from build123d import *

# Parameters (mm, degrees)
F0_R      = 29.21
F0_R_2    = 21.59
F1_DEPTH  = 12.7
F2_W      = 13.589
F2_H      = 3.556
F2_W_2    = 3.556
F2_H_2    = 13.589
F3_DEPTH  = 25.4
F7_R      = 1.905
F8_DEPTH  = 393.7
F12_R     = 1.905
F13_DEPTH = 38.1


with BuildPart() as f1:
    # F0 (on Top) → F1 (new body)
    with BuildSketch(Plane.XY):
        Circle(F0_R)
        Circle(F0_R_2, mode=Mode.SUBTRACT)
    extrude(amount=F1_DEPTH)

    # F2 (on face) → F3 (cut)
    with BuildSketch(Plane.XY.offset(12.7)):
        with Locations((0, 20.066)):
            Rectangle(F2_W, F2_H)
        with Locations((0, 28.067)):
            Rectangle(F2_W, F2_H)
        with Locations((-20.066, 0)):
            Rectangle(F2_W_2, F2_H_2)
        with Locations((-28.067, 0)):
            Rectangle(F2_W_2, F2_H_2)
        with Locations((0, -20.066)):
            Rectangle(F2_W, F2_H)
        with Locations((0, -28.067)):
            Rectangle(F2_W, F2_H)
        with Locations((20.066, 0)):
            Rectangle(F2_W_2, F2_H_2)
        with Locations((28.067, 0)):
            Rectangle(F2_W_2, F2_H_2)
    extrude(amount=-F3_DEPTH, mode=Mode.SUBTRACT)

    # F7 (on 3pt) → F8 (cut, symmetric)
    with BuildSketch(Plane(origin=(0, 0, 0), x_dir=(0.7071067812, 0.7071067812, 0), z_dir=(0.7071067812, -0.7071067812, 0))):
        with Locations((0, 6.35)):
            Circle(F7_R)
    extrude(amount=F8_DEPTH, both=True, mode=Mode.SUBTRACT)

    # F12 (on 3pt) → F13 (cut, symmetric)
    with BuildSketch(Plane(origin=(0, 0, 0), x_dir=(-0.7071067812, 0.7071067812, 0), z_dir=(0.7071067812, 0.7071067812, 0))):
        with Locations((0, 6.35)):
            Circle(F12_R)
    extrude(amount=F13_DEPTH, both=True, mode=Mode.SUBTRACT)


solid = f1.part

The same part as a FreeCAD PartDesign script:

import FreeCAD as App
import Part
import Sketcher
Q = App.Units.Quantity

doc = App.newDocument("Part")
body = doc.addObject("PartDesign::Body", "Body")

# Sketch on XY plane
sketch1 = body.newObject("Sketcher::SketchObject", "Sketch")
sketch1.AttachmentSupport = (doc.getObject("XY_Plane"), [""])
sketch1.MapMode = "FlatFace"
sketch1.addGeometry([
    Part.Circle(App.Vector(0, 0, 0), App.Vector(0, 0, 1), 29),
    Part.Circle(App.Vector(0, 0, 0), App.Vector(0, 0, 1), 22),
], False)
sketch1.addConstraint([
    Sketcher.Constraint("Coincident", 0, 3, -1, 1),
    Sketcher.Constraint("Coincident", 1, 3, -1, 1),
    Sketcher.Constraint("Diameter", 0, Q("2.3 in")),
    Sketcher.Constraint("Diameter", 1, Q("1.7 in")),
])
pad1 = body.newObject("PartDesign::Pad", "Pad")
pad1.Profile = sketch1
pad1.Length = Q("0.5 in")

# Sketch on XY plane
sketch2 = body.newObject("Sketcher::SketchObject", "Sketch001")
sketch2.AttachmentSupport = (doc.getObject("XY_Plane"), [""])
sketch2.MapMode = "FlatFace"
sketch2.AttachmentOffset = App.Placement(App.Vector(0, 0, 0.5 * 25.4), App.Rotation())
sketch2.addGeometry([
    Part.LineSegment(App.Vector(-6.8, 21.8, 0), App.Vector(-6.8, 18.3, 0)),  # 0
    Part.LineSegment(App.Vector(-6.8, 18.3, 0), App.Vector(6.8, 18.3, 0)),  # 1
    Part.LineSegment(App.Vector(6.8, 18.3, 0), App.Vector(6.8, 21.8, 0)),  # 2
    Part.LineSegment(App.Vector(6.8, 21.8, 0), App.Vector(-6.8, 21.8, 0)),  # 3
    Part.LineSegment(App.Vector(-6.8, 29.8, 0), App.Vector(-6.8, 26.3, 0)),  # 4
    Part.LineSegment(App.Vector(-6.8, 26.3, 0), App.Vector(6.8, 26.3, 0)),  # 5
    Part.LineSegment(App.Vector(6.8, 26.3, 0), App.Vector(6.8, 29.8, 0)),  # 6
    Part.LineSegment(App.Vector(6.8, 29.8, 0), App.Vector(-6.8, 29.8, 0)),  # 7
    Part.LineSegment(App.Vector(-21.8, 6.8, 0), App.Vector(-21.8, -6.8, 0)),  # 8
    Part.LineSegment(App.Vector(-21.8, -6.8, 0), App.Vector(-18.3, -6.8, 0)),  # 9
    Part.LineSegment(App.Vector(-18.3, -6.8, 0), App.Vector(-18.3, 6.8, 0)),  # 10
    Part.LineSegment(App.Vector(-18.3, 6.8, 0), App.Vector(-21.8, 6.8, 0)),  # 11
    Part.LineSegment(App.Vector(-29.8, 6.8, 0), App.Vector(-29.8, -6.8, 0)),  # 12
    Part.LineSegment(App.Vector(-29.8, -6.8, 0), App.Vector(-26.3, -6.8, 0)),  # 13
    Part.LineSegment(App.Vector(-26.3, -6.8, 0), App.Vector(-26.3, 6.8, 0)),  # 14
    Part.LineSegment(App.Vector(-26.3, 6.8, 0), App.Vector(-29.8, 6.8, 0)),  # 15
    Part.LineSegment(App.Vector(-6.8, -18.3, 0), App.Vector(-6.8, -21.8, 0)),  # 16
    Part.LineSegment(App.Vector(-6.8, -21.8, 0), App.Vector(6.8, -21.8, 0)),  # 17
    Part.LineSegment(App.Vector(6.8, -21.8, 0), App.Vector(6.8, -18.3, 0)),  # 18
    Part.LineSegment(App.Vector(6.8, -18.3, 0), App.Vector(-6.8, -18.3, 0)),  # 19
    Part.LineSegment(App.Vector(-6.8, -26.3, 0), App.Vector(-6.8, -29.8, 0)),  # 20
    Part.LineSegment(App.Vector(-6.8, -29.8, 0), App.Vector(6.8, -29.8, 0)),  # 21
    Part.LineSegment(App.Vector(6.8, -29.8, 0), App.Vector(6.8, -26.3, 0)),  # 22
    Part.LineSegment(App.Vector(6.8, -26.3, 0), App.Vector(-6.8, -26.3, 0)),  # 23
    Part.LineSegment(App.Vector(18.3, 6.8, 0), App.Vector(18.3, -6.8, 0)),  # 24
    Part.LineSegment(App.Vector(18.3, -6.8, 0), App.Vector(21.8, -6.8, 0)),  # 25
    Part.LineSegment(App.Vector(21.8, -6.8, 0), App.Vector(21.8, 6.8, 0)),  # 26
    Part.LineSegment(App.Vector(21.8, 6.8, 0), App.Vector(18.3, 6.8, 0)),  # 27
    Part.LineSegment(App.Vector(26.3, 6.8, 0), App.Vector(26.3, -6.8, 0)),  # 28
    Part.LineSegment(App.Vector(26.3, -6.8, 0), App.Vector(29.8, -6.8, 0)),  # 29
    Part.LineSegment(App.Vector(29.8, -6.8, 0), App.Vector(29.8, 6.8, 0)),  # 30
    Part.LineSegment(App.Vector(29.8, 6.8, 0), App.Vector(26.3, 6.8, 0)),  # 31
], False)
sketch2.addConstraint([
    Sketcher.Constraint("Coincident", 0, 2, 1, 1),
    Sketcher.Constraint("Coincident", 1, 2, 2, 1),
    Sketcher.Constraint("Coincident", 2, 2, 3, 1),
    Sketcher.Constraint("Coincident", 3, 2, 0, 1),
    Sketcher.Constraint("Coincident", 4, 2, 5, 1),
    Sketcher.Constraint("Coincident", 5, 2, 6, 1),
    Sketcher.Constraint("Coincident", 6, 2, 7, 1),
    Sketcher.Constraint("Coincident", 7, 2, 4, 1),
    Sketcher.Constraint("Coincident", 8, 2, 9, 1),
    Sketcher.Constraint("Coincident", 9, 2, 10, 1),
    Sketcher.Constraint("Coincident", 10, 2, 11, 1),
    Sketcher.Constraint("Coincident", 11, 2, 8, 1),
    Sketcher.Constraint("Coincident", 12, 2, 13, 1),
    Sketcher.Constraint("Coincident", 13, 2, 14, 1),
    Sketcher.Constraint("Coincident", 14, 2, 15, 1),
    Sketcher.Constraint("Coincident", 15, 2, 12, 1),
    Sketcher.Constraint("Coincident", 16, 2, 17, 1),
    Sketcher.Constraint("Coincident", 17, 2, 18, 1),
    Sketcher.Constraint("Coincident", 18, 2, 19, 1),
    Sketcher.Constraint("Coincident", 19, 2, 16, 1),
    Sketcher.Constraint("Coincident", 20, 2, 21, 1),
    Sketcher.Constraint("Coincident", 21, 2, 22, 1),
    Sketcher.Constraint("Coincident", 22, 2, 23, 1),
    Sketcher.Constraint("Coincident", 23, 2, 20, 1),
    Sketcher.Constraint("Coincident", 24, 2, 25, 1),
    Sketcher.Constraint("Coincident", 25, 2, 26, 1),
    Sketcher.Constraint("Coincident", 26, 2, 27, 1),
    Sketcher.Constraint("Coincident", 27, 2, 24, 1),
    Sketcher.Constraint("Coincident", 28, 2, 29, 1),
    Sketcher.Constraint("Coincident", 29, 2, 30, 1),
    Sketcher.Constraint("Coincident", 30, 2, 31, 1),
    Sketcher.Constraint("Coincident", 31, 2, 28, 1),
    Sketcher.Constraint("Vertical", 0),
    Sketcher.Constraint("Horizontal", 1),
    Sketcher.Constraint("Vertical", 2),
    Sketcher.Constraint("Horizontal", 3),
    Sketcher.Constraint("Vertical", 4),
    Sketcher.Constraint("Horizontal", 5),
    Sketcher.Constraint("Vertical", 6),
    Sketcher.Constraint("Horizontal", 7),
    Sketcher.Constraint("Vertical", 8),
    Sketcher.Constraint("Horizontal", 9),
    Sketcher.Constraint("Vertical", 10),
    Sketcher.Constraint("Horizontal", 11),
    Sketcher.Constraint("Vertical", 12),
    Sketcher.Constraint("Horizontal", 13),
    Sketcher.Constraint("Vertical", 14),
    Sketcher.Constraint("Horizontal", 15),
    Sketcher.Constraint("Vertical", 16),
    Sketcher.Constraint("Horizontal", 17),
    Sketcher.Constraint("Vertical", 18),
    Sketcher.Constraint("Horizontal", 19),
    Sketcher.Constraint("Vertical", 20),
    Sketcher.Constraint("Horizontal", 21),
    Sketcher.Constraint("Vertical", 22),
    Sketcher.Constraint("Horizontal", 23),
    Sketcher.Constraint("Vertical", 24),
    Sketcher.Constraint("Horizontal", 25),
    Sketcher.Constraint("Vertical", 26),
    Sketcher.Constraint("Horizontal", 27),
    Sketcher.Constraint("Vertical", 28),
    Sketcher.Constraint("Horizontal", 29),
    Sketcher.Constraint("Vertical", 30),
    Sketcher.Constraint("Horizontal", 31),
    Sketcher.Constraint("Symmetric", 2, 2, 16, 2, -1, 1),
    Sketcher.Constraint("Symmetric", 0, 2, 18, 2, -1, 1),
    Sketcher.Constraint("Symmetric", 6, 2, 20, 2, -1, 1),
    Sketcher.Constraint("Symmetric", 4, 2, 22, 2, -1, 1),
    Sketcher.Constraint("Symmetric", 10, 2, 24, 2, -1, 1),
    Sketcher.Constraint("Symmetric", 8, 2, 26, 2, -1, 1),
    Sketcher.Constraint("Symmetric", 14, 2, 28, 2, -1, 1),
    Sketcher.Constraint("Symmetric", 12, 2, 30, 2, -1, 1),
    Sketcher.Constraint("Horizontal", 9, 2, 12, 2),
    Sketcher.Constraint("Horizontal", 11, 2, 14, 2),
    Sketcher.Constraint("Horizontal", 13, 2, 24, 2),
    Sketcher.Constraint("Vertical", 3, 2, 4, 2),
    Sketcher.Constraint("Vertical", 2, 2, 5, 2),
    Sketcher.Constraint("Vertical", 7, 2, 16, 2),
    Sketcher.Constraint("Equal", 11, 13),
    Sketcher.Constraint("Equal", 31, 0),
    Sketcher.Constraint("Equal", 2, 4),
    Sketcher.Constraint("Equal", 23, 8),
    Sketcher.Constraint("DistanceX", 9, 1, 9, 2, Q("0.14 in")),
    Sketcher.Constraint("DistanceX", 1, 1, 1, 2, Q("0.535 in")),
    Sketcher.Constraint("DistanceY", -1, 1, 0, 2, Q("0.72 in")),
    Sketcher.Constraint("DistanceX", 8, 2, -1, 1, Q("0.86 in")),
    Sketcher.Constraint("DistanceY", -1, 1, 4, 2, Q("1.035 in")),
    Sketcher.Constraint("DistanceX", 12, 2, -1, 1, Q("1.175 in")),
])
pocket1 = body.newObject("PartDesign::Pocket", "Pocket")
pocket1.Profile = sketch2
pocket1.Length = Q("1 in")

# Sketch on an angled plane
sketch3 = body.newObject("Sketcher::SketchObject", "Sketch002")
sketch3.Placement = App.Placement(App.Vector(0, 0, 0), App.Rotation(App.Vector(0.707106781, 0.707106781, 0), App.Vector(0, 0, 0.999999999), App.Vector(0.707106781, -0.707106781, 0), "ZXY"))
sketch3.addGeometry(Part.Circle(App.Vector(0, 6.3, 0), App.Vector(0, 0, 1), 1.9), False)
sketch3.addConstraint([
    Sketcher.Constraint("PointOnObject", 0, 3, -2),
    Sketcher.Constraint("Diameter", 0, Q("0.15 in")),
    Sketcher.Constraint("DistanceY", -1, 1, 0, 3, Q("0.25 in")),
])
pocket2 = body.newObject("PartDesign::Pocket", "Pocket001")
pocket2.Profile = sketch3
pocket2.Length = Q("31 in")
pocket2.Midplane = True

# Sketch on an angled plane
sketch4 = body.newObject("Sketcher::SketchObject", "Sketch003")
sketch4.Placement = App.Placement(App.Vector(0, 0, 0), App.Rotation(App.Vector(-0.707106781, 0.707106781, 0), App.Vector(0, 0, 0.999999999), App.Vector(0.707106781, 0.707106781, 0), "ZXY"))
sketch4.addGeometry(Part.Circle(App.Vector(0, 6.3, 0), App.Vector(0, 0, 1), 1.9), False)
sketch4.addConstraint([
    Sketcher.Constraint("PointOnObject", 0, 3, -2),
    Sketcher.Constraint("Diameter", 0, Q("0.15 in")),
    Sketcher.Constraint("DistanceY", -1, 1, 0, 3, Q("0.25 in")),
])
pocket3 = body.newObject("PartDesign::Pocket", "Pocket002")
pocket3.Profile = sketch4
pocket3.Length = Q("3 in")
pocket3.Midplane = True

doc.recompute()
